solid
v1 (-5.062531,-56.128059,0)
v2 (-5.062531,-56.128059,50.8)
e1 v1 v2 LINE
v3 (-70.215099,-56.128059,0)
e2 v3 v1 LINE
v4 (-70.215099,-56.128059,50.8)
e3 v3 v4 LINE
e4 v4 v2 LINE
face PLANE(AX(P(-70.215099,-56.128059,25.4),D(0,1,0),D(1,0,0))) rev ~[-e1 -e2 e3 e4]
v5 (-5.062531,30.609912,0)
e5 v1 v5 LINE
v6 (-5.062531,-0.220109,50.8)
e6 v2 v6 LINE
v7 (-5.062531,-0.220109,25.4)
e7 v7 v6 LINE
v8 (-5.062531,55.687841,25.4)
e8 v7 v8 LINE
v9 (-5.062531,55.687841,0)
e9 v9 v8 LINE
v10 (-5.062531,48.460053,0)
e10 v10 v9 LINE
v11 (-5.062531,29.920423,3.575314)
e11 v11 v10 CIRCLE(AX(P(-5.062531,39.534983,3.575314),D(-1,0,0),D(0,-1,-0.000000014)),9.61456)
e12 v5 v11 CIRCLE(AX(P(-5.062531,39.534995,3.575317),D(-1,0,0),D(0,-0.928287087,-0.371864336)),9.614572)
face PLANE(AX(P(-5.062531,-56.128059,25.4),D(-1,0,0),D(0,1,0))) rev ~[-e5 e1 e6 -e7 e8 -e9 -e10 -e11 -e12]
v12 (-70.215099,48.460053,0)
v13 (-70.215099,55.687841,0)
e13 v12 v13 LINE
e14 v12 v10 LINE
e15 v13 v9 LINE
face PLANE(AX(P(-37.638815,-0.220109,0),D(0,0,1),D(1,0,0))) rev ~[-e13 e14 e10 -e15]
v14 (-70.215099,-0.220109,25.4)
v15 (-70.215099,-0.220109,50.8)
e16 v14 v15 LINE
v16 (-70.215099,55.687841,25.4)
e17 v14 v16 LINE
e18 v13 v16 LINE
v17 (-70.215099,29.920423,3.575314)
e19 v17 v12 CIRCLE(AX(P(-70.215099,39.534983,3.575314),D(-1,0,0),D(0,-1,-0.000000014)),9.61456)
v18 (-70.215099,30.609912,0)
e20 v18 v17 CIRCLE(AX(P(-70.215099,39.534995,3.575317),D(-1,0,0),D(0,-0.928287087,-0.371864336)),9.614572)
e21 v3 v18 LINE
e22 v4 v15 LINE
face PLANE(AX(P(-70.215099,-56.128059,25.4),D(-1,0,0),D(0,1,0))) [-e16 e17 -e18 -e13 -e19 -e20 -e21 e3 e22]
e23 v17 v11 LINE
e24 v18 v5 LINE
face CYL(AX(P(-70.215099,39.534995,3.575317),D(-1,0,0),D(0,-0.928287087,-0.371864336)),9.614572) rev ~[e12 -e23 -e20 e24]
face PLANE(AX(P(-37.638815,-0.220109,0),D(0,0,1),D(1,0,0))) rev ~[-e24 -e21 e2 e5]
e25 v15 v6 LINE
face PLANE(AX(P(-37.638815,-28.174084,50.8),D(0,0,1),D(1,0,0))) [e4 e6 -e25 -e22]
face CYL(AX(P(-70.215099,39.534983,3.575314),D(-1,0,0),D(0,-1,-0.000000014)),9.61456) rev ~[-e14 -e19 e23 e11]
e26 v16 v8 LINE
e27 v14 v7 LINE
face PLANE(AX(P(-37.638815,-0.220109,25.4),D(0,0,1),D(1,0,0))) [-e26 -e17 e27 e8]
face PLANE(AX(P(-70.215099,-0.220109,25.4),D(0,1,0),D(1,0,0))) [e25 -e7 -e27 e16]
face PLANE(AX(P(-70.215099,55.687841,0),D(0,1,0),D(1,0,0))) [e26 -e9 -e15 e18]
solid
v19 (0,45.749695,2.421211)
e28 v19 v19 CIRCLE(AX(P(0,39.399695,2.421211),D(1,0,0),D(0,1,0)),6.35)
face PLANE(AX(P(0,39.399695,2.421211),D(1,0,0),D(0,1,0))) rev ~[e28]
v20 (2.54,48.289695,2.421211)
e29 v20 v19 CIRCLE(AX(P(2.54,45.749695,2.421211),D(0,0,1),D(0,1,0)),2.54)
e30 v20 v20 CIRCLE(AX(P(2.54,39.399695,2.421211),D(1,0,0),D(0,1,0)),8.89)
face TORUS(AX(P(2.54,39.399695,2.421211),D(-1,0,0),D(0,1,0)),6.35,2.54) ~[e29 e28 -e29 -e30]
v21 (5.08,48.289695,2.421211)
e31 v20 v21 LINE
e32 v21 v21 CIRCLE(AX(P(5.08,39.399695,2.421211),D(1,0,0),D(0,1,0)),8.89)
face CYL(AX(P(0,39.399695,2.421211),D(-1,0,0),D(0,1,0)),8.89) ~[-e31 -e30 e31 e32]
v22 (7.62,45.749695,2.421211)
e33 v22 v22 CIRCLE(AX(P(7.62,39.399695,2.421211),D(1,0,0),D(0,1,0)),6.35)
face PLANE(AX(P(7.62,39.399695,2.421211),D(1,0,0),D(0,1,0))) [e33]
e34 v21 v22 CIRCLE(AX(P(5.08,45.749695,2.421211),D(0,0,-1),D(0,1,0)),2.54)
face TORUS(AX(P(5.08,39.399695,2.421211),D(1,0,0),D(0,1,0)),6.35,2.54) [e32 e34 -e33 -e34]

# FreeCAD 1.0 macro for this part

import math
import FreeCAD as App
import Part
import Sketcher

V = App.Vector
Q = App.Units.Quantity


def edges_at(feature, points):
    """Names of the edges that pass closest to the given points."""
    edges = feature.Shape.Edges
    near = lambda p: min(range(len(edges)), key=lambda i: edges[i].distToShape(Part.Vertex(*p))[0])
    return sorted({f"Edge{near(p) + 1}" for p in points})


def add_polygon(sketch, points):
    """Adds a closed chain of lines whose ends are joined by coincident constraints."""
    first, n = sketch.GeometryCount, len(points)
    for a, b in zip(points, points[1:] + points[:1]):
        sketch.addGeometry(Part.LineSegment(App.Vector(*a, 0), App.Vector(*b, 0)), False)
    for i in range(n):
        sketch.addConstraint(Sketcher.Constraint("Coincident", first + i, 2, first + (i + 1) % n, 1))

doc = App.newDocument("Part")
params = doc.addObject("Spreadsheet::Sheet", "Params")
for row, (alias, value) in enumerate([
    ("pad1_length", "1 in"),
    ("pad2_length", "1 in"),
    ("pocket1_length", "3 in"),
    ("sketch4_diameter", "0.7 in"),
    ("pad3_length", "0.3 in"),
    ("fillet_radius", "0.1 in"),
], start=1):
    params.set(f"A{row}", alias)
    params.set(f"B{row}", "=" + value)
    params.setAlias(f"B{row}", alias)

body = doc.addObject("PartDesign::Body", "Body")

sketch1 = body.newObject("Sketcher::SketchObject", "Sketch")
sketch1.AttachmentSupport = (doc.getObject("XY_Plane"), [""])
sketch1.MapMode = "FlatFace"
add_polygon(sketch1, [(-70.215099, 55.687841), (-70.215099, -56.128059), (-5.062531, -56.128059), (-5.062531, 55.687841)])
sketch1.addConstraint([
    Sketcher.Constraint("Vertical", 0),
    Sketcher.Constraint("Horizontal", 1),
    Sketcher.Constraint("Vertical", 2),
    Sketcher.Constraint("Horizontal", 3),
    Sketcher.Constraint("DistanceY", 0, 2, 0, 1, Q("111.8159 mm")),
    Sketcher.Constraint("DistanceX", 1, 1, 1, 2, Q("65.152568 mm")),
    Sketcher.Constraint("DistanceX", 0, 2, -1, 1, Q("70.215099 mm")),
    Sketcher.Constraint("DistanceY", 0, 2, -1, 1, Q("56.128059 mm")),
])
pad1 = body.newObject("PartDesign::Pad", "Pad")
pad1.Profile = sketch1
pad1.setExpression("Length", "Params.pad1_length")

sketch2 = body.newObject("Sketcher::SketchObject", "Sketch001")
sketch2.AttachmentSupport = (doc.getObject("XY_Plane"), [""])
sketch2.MapMode = "FlatFace"
sketch2.AttachmentOffset = App.Placement(V(0, 0, 1 * 25.4), App.Rotation())
add_polygon(sketch2, [(-70.215099, -0.220109), (-70.215099, -56.128059), (-5.062531, -56.128059), (-5.062531, -0.220109)])
sketch2.addConstraint([
    Sketcher.Constraint("Vertical", 0),
    Sketcher.Constraint("Horizontal", 1),
    Sketcher.Constraint("Vertical", 2),
    Sketcher.Constraint("Horizontal", 3),
    Sketcher.Constraint("DistanceX", 1, 1, 1, 2, Q("65.152568 mm")),
    Sketcher.Constraint("DistanceY", 0, 2, 0, 1, Q("55.90795 mm")),
    Sketcher.Constraint("DistanceX", 0, 2, -1, 1, Q("70.215099 mm")),
    Sketcher.Constraint("DistanceY", 0, 2, -1, 1, Q("56.128059 mm")),
])
pad2 = body.newObject("PartDesign::Pad", "Pad001")
pad2.Profile = sketch2
pad2.setExpression("Length", "Params.pad2_length")

sketch3 = body.newObject("Sketcher::SketchObject", "Sketch002")
sketch3.AttachmentSupport = (doc.getObject("YZ_Plane"), [""])
sketch3.MapMode = "FlatFace"
sketch3.AttachmentOffset = App.Placement(V(0, 0, -70.215099), App.Rotation())
sketch3.addGeometry([
    Part.ArcOfCircle(Part.Circle(V(39.534995, 3.575317, 0), V(0, 0, 1), 9.614572), math.radians(-179.999984), math.radians(-158.169358)),
    Part.ArcOfCircle(Part.Circle(V(39.534983, 3.575314, 0), V(0, 0, 1), 9.61456), math.radians(-21.830657), math.radians(180.000001)),
    Part.ArcOfCircle(Part.Circle(V(39.534982, 3.575313, 0), V(0, 0, 1), 9.614559), math.radians(-158.169349), math.radians(-21.830651)),
], False)
sketch3.addConstraint([
    Sketcher.Constraint("Tangent", 0, 1, 1, 2),
    Sketcher.Constraint("Tangent", 1, 1, 2, 2),
    Sketcher.Constraint("Tangent", 2, 1, 0, 2),
    Sketcher.Constraint("PointOnObject", 1, 1, -1),
    Sketcher.Constraint("PointOnObject", 2, 1, -1),
    Sketcher.Constraint("Horizontal", 2, 3, 0, 1),
    Sketcher.Constraint("Radius", 1, Q("9.61456 mm")),
    Sketcher.Constraint("DistanceX", -1, 1, 2, 1, Q("30.609912 mm")),
    Sketcher.Constraint("DistanceX", 2, 3, 1, 1, Q("8.925071 mm")),
])
pocket1 = body.newObject("PartDesign::Pocket", "Pocket")
pocket1.Profile = sketch3
pocket1.setExpression("Length", "Params.pocket1_length")
pocket1.Reversed = True
body2 = doc.addObject("PartDesign::Body", "Body001")

sketch4 = body2.newObject("Sketcher::SketchObject", "Sketch003")
sketch4.AttachmentSupport = (doc.getObject("YZ_Plane001"), [""])
sketch4.MapMode = "FlatFace"
sketch4.addGeometry(Part.Circle(V(39.399695, 2.421211, 0), V(0, 0, 1), 8.89), False)
sketch4.addConstraint([
    Sketcher.Constraint("Diameter", 0, Q("0.7 in")),
    Sketcher.Constraint("DistanceY", -1, 1, 0, 3, Q("2.421211 mm")),
    Sketcher.Constraint("DistanceX", -1, 1, 0, 3, Q("39.399695 mm")),
])
sketch4.setExpression("Constraints[0]", "Params.sketch4_diameter")
pad3 = body2.newObject("PartDesign::Pad", "Pad002")
pad3.Profile = sketch4
pad3.setExpression("Length", "Params.pad3_length")
doc.recompute()

fillet = body2.newObject("PartDesign::Fillet", "Fillet")
fillet.Base = (pad3, edges_at(pad3, [(7.62, 30.51, 2.421), (0, 30.51, 2.421)]))
fillet.setExpression("Radius", "Params.fillet_radius")

doc.recompute()
